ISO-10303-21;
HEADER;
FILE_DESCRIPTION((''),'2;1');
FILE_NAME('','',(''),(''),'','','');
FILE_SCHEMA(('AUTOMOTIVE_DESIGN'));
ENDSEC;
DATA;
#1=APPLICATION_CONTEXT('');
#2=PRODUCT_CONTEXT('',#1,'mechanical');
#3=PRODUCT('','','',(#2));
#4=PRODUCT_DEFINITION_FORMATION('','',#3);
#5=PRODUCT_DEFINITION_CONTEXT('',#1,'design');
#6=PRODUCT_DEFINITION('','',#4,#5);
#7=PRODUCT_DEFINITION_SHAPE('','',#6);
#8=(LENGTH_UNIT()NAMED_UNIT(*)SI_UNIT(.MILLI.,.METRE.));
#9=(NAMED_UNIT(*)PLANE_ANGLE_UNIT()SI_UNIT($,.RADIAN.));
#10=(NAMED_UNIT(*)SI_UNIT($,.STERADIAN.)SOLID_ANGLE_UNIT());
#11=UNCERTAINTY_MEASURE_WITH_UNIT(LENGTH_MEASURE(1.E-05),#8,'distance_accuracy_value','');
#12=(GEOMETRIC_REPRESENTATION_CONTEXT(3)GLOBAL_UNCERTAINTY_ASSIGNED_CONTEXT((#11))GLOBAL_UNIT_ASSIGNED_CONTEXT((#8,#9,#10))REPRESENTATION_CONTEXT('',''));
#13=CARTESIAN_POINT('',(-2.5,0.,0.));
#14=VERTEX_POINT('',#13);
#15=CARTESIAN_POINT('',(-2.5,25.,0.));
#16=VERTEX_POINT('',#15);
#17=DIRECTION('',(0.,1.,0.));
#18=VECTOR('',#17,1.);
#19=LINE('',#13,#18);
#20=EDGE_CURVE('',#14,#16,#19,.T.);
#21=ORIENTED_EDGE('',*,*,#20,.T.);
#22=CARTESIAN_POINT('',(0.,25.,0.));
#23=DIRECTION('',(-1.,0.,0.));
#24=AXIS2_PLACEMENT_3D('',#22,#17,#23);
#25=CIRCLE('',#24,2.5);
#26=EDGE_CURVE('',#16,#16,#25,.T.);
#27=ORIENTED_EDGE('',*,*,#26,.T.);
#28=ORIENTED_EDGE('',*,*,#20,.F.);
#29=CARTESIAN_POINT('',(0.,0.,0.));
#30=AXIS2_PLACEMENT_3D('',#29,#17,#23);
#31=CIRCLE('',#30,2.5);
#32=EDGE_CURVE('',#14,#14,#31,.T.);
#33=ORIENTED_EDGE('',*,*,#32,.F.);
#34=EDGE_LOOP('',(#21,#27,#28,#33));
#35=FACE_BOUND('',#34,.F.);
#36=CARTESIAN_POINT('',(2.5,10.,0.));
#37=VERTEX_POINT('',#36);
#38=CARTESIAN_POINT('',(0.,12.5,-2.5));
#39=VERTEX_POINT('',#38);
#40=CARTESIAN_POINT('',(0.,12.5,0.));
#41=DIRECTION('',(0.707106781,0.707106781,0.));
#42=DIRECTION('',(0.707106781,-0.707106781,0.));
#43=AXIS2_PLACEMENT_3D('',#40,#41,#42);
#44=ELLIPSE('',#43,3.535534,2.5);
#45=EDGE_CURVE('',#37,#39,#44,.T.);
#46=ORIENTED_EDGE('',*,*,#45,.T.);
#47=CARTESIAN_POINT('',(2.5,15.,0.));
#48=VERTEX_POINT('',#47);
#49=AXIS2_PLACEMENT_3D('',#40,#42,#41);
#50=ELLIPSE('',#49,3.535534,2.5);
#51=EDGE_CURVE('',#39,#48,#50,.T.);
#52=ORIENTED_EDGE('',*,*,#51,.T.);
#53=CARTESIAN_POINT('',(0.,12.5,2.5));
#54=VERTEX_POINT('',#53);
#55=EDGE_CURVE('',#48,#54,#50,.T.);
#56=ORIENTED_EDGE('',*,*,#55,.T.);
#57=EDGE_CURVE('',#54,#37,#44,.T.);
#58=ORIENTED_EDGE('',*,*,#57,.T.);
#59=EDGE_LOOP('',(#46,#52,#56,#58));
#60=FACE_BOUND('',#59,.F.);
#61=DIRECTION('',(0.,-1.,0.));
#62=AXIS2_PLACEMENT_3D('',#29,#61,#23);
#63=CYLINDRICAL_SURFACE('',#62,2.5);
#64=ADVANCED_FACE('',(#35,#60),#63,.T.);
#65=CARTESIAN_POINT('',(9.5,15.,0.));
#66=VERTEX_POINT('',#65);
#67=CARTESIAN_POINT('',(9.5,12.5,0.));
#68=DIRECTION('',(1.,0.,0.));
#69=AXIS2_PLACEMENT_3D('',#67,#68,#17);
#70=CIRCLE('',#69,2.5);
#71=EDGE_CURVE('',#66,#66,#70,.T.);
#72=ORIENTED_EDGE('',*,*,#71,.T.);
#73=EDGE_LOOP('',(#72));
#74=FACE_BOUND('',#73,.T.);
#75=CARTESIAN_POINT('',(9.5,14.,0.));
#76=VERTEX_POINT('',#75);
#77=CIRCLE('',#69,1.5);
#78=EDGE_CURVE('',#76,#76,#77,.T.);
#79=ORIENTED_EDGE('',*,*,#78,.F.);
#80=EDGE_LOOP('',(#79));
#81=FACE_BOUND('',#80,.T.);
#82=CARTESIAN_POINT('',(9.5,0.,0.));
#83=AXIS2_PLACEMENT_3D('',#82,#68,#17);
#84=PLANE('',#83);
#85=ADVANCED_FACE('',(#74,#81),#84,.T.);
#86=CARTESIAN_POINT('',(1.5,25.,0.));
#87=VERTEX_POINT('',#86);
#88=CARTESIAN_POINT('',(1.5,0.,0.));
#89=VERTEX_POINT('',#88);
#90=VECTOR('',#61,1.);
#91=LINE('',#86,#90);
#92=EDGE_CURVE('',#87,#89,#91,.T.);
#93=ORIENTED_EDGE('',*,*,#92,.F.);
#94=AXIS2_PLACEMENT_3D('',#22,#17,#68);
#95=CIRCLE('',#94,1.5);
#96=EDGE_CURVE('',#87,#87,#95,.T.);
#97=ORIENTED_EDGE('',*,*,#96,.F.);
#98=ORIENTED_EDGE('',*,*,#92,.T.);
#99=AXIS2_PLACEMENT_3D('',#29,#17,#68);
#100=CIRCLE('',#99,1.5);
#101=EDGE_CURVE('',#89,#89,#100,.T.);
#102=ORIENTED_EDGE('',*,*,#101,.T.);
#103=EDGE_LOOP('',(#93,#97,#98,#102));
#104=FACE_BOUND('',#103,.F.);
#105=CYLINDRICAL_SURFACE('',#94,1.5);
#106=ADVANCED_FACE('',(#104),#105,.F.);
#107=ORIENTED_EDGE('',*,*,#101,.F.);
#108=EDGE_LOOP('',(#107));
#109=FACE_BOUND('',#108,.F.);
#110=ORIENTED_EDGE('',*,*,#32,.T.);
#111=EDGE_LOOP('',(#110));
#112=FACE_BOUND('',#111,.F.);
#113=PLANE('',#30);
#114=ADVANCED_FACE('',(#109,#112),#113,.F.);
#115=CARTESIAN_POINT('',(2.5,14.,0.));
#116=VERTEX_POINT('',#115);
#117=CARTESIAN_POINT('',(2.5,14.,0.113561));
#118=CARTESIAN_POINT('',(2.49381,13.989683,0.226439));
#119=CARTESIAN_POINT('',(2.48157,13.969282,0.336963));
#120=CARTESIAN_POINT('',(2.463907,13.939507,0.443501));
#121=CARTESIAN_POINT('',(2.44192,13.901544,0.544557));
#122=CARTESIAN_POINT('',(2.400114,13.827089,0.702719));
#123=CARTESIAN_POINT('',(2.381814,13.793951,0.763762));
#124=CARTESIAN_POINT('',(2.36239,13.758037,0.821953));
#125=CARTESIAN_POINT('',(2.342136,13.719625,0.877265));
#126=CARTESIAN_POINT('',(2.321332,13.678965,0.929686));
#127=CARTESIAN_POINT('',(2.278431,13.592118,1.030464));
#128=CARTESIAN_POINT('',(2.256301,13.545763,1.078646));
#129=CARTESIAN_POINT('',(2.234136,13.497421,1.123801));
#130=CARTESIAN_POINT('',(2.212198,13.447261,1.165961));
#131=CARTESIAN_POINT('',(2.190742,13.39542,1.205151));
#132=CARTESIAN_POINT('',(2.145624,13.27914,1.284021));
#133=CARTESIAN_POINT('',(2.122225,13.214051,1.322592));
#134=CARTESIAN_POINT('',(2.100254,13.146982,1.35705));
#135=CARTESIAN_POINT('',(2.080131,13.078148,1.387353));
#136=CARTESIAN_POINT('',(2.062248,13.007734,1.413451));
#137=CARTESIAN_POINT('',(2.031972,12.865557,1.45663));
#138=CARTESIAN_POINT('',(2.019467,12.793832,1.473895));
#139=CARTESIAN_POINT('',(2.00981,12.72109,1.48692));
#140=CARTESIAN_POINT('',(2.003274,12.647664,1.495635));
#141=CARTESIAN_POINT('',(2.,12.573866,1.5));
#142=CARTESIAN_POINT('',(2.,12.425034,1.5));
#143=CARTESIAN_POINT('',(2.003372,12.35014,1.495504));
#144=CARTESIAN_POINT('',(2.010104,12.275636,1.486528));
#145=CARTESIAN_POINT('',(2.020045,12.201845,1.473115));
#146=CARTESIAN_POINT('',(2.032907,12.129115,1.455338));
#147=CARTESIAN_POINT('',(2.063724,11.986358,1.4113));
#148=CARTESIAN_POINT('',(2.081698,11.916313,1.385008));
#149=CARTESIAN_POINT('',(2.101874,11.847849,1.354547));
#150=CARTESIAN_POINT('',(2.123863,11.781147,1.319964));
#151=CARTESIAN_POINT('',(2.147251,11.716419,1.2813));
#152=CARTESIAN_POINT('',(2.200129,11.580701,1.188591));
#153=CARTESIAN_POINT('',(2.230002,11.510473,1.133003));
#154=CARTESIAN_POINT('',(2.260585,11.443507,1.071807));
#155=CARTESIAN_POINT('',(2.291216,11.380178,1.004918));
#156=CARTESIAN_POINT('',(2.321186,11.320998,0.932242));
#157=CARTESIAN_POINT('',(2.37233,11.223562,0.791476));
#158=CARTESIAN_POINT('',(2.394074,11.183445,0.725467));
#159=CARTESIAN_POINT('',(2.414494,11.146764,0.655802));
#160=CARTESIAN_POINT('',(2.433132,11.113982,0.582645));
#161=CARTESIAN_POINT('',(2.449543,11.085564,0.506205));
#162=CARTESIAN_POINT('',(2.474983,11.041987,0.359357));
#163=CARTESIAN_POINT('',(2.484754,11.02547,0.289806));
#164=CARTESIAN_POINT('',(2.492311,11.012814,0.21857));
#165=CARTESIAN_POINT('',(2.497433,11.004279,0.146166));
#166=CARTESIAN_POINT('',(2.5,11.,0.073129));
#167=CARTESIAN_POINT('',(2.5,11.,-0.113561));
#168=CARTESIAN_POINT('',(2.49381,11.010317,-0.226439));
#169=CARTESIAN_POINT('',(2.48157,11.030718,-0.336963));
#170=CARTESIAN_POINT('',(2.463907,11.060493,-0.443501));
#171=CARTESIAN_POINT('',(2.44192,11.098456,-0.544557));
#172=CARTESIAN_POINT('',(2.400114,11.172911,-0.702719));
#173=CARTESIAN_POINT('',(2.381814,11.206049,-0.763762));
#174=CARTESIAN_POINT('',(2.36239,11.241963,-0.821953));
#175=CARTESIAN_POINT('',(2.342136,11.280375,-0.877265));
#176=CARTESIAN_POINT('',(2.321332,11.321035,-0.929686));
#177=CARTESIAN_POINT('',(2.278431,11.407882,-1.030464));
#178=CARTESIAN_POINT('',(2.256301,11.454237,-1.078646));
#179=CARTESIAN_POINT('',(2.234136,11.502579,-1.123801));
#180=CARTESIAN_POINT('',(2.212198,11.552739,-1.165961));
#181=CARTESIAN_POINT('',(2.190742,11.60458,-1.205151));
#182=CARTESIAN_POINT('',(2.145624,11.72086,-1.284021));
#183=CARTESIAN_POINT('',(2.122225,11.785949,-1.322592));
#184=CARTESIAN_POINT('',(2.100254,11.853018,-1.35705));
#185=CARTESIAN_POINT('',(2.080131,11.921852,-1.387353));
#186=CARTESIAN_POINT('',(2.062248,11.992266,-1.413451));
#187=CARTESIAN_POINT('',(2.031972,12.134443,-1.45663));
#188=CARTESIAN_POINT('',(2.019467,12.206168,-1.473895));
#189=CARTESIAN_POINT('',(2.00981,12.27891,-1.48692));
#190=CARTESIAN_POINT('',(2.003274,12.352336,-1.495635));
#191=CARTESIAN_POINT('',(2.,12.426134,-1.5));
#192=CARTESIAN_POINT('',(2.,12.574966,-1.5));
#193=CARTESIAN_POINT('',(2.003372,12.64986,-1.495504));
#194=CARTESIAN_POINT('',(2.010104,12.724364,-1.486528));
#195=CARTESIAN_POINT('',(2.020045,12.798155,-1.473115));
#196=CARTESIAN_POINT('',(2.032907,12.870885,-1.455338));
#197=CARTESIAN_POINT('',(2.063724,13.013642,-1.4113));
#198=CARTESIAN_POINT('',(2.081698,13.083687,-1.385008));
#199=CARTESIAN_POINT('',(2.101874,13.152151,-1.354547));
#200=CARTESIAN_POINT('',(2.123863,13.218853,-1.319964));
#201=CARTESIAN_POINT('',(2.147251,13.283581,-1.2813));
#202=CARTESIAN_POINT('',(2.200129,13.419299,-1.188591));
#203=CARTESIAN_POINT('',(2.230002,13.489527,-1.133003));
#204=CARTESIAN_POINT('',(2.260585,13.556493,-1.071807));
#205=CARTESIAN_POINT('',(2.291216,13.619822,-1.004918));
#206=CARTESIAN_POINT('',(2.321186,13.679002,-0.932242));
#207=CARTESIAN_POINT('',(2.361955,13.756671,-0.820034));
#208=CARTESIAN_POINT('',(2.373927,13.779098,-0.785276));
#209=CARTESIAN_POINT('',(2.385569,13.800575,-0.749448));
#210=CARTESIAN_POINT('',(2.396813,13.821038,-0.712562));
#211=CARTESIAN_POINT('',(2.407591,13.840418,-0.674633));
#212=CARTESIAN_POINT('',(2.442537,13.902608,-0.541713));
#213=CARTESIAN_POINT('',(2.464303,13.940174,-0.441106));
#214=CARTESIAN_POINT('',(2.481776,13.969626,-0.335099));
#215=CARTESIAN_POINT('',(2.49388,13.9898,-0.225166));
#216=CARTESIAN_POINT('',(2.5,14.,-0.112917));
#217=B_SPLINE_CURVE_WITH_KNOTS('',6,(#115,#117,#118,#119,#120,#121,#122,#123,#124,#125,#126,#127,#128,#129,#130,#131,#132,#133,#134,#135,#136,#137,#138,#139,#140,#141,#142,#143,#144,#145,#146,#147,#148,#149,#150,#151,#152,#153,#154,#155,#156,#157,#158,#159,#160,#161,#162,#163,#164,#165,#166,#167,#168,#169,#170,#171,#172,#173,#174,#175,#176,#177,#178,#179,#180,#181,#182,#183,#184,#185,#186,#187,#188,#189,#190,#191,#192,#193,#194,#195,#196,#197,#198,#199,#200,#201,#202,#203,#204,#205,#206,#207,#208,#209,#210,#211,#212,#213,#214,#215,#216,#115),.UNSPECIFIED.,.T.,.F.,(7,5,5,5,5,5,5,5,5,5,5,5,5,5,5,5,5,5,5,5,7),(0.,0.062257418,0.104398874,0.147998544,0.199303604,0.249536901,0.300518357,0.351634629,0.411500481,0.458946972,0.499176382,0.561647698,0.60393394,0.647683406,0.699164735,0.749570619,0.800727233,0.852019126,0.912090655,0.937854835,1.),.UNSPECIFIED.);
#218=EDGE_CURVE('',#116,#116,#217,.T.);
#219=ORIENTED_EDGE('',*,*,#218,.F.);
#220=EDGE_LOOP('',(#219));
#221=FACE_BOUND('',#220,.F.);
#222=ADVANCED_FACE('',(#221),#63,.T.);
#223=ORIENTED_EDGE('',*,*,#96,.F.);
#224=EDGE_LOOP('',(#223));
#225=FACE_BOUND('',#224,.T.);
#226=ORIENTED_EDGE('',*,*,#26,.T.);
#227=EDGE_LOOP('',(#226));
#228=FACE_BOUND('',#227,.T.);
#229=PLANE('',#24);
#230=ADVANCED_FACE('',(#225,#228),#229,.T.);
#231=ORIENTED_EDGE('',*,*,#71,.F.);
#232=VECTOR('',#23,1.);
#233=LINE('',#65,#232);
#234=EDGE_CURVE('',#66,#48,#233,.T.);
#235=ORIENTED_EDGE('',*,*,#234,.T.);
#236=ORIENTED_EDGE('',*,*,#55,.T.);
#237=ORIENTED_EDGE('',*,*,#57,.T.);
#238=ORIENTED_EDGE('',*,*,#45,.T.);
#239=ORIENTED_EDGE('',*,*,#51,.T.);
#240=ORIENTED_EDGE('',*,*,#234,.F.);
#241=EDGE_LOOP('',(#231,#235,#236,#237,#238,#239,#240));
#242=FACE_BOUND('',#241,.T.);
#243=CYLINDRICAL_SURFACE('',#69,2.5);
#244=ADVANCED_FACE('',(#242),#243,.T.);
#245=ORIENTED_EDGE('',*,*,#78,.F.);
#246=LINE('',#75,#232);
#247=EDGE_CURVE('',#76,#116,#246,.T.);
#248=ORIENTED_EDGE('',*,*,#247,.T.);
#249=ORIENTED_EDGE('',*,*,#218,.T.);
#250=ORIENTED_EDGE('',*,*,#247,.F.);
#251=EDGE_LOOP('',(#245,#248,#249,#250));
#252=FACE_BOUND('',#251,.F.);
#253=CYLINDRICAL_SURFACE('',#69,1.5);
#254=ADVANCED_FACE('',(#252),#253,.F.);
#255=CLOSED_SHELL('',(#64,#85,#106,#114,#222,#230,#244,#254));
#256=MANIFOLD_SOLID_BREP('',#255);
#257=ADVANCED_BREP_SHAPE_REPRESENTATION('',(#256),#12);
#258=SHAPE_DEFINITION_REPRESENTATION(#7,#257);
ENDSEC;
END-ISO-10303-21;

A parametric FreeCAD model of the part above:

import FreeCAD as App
import Part
import Sketcher
Q = App.Units.Quantity

doc = App.newDocument("Part")
body = doc.addObject("PartDesign::Body", "Body")

# Sketch on XZ plane
sketch1 = body.newObject("Sketcher::SketchObject", "Sketch")
sketch1.AttachmentSupport = (doc.getObject("XZ_Plane"), [""])
sketch1.MapMode = "FlatFace"
sketch1.addGeometry(Part.Circle(App.Vector(0, 0, 0), App.Vector(0, 0, 1), 2.5), False)
sketch1.addConstraint(Sketcher.Constraint("Coincident", 0, 3, -1, 1))
sketch1.addConstraint(Sketcher.Constraint("Diameter", 0, Q("5 mm")))
pad1 = body.newObject("PartDesign::Pad", "Pad")
pad1.Profile = sketch1
pad1.Length = 25
pad1.Reversed = True

# Sketch on XZ plane
sketch2 = body.newObject("Sketcher::SketchObject", "Sketch001")
sketch2.AttachmentSupport = (doc.getObject("XZ_Plane"), [""])
sketch2.MapMode = "FlatFace"
sketch2.AttachmentOffset = App.Placement(App.Vector(0, 0, -25), App.Rotation())
sketch2.addGeometry(Part.Circle(App.Vector(0, 0, 0), App.Vector(0, 0, 1), 1.5), False)
sketch2.addConstraint(Sketcher.Constraint("Coincident", 0, 3, -1, 1))
sketch2.addConstraint(Sketcher.Constraint("Diameter", 0, Q("3 mm")))
pocket1 = body.newObject("PartDesign::Pocket", "Pocket")
pocket1.Profile = sketch2
pocket1.Length = 25
pocket1.Reversed = True

# Sketch on YZ plane
sketch3 = body.newObject("Sketcher::SketchObject", "Sketch002")
sketch3.AttachmentSupport = (doc.getObject("YZ_Plane"), [""])
sketch3.MapMode = "FlatFace"
sketch3.AttachmentOffset = App.Placement(App.Vector(0, 0, 9.5), App.Rotation())
sketch3.addGeometry(Part.Circle(App.Vector(12.5, 0, 0), App.Vector(0, 0, 1), 2.5), False)
sketch3.addGeometry(Part.Circle(App.Vector(12.5, 0, 0), App.Vector(0, 0, 1), 1.5), False)
sketch3.addConstraint(Sketcher.Constraint("Coincident", 1, 3, 0, 3))
sketch3.addConstraint(Sketcher.Constraint("PointOnObject", 0, 3, -1))
sketch3.addConstraint(Sketcher.Constraint("Diameter", 0, Q("5 mm")))
sketch3.addConstraint(Sketcher.Constraint("Diameter", 1, Q("3 mm")))
sketch3.addConstraint(Sketcher.Constraint("DistanceX", -1, 1, 0, 3, Q("12.5 mm")))
pad2 = body.newObject("PartDesign::Pad", "Pad001")
pad2.Profile = sketch3
pad2.Type = "UpToFirst"
pad2.Reversed = True

doc.recompute()
